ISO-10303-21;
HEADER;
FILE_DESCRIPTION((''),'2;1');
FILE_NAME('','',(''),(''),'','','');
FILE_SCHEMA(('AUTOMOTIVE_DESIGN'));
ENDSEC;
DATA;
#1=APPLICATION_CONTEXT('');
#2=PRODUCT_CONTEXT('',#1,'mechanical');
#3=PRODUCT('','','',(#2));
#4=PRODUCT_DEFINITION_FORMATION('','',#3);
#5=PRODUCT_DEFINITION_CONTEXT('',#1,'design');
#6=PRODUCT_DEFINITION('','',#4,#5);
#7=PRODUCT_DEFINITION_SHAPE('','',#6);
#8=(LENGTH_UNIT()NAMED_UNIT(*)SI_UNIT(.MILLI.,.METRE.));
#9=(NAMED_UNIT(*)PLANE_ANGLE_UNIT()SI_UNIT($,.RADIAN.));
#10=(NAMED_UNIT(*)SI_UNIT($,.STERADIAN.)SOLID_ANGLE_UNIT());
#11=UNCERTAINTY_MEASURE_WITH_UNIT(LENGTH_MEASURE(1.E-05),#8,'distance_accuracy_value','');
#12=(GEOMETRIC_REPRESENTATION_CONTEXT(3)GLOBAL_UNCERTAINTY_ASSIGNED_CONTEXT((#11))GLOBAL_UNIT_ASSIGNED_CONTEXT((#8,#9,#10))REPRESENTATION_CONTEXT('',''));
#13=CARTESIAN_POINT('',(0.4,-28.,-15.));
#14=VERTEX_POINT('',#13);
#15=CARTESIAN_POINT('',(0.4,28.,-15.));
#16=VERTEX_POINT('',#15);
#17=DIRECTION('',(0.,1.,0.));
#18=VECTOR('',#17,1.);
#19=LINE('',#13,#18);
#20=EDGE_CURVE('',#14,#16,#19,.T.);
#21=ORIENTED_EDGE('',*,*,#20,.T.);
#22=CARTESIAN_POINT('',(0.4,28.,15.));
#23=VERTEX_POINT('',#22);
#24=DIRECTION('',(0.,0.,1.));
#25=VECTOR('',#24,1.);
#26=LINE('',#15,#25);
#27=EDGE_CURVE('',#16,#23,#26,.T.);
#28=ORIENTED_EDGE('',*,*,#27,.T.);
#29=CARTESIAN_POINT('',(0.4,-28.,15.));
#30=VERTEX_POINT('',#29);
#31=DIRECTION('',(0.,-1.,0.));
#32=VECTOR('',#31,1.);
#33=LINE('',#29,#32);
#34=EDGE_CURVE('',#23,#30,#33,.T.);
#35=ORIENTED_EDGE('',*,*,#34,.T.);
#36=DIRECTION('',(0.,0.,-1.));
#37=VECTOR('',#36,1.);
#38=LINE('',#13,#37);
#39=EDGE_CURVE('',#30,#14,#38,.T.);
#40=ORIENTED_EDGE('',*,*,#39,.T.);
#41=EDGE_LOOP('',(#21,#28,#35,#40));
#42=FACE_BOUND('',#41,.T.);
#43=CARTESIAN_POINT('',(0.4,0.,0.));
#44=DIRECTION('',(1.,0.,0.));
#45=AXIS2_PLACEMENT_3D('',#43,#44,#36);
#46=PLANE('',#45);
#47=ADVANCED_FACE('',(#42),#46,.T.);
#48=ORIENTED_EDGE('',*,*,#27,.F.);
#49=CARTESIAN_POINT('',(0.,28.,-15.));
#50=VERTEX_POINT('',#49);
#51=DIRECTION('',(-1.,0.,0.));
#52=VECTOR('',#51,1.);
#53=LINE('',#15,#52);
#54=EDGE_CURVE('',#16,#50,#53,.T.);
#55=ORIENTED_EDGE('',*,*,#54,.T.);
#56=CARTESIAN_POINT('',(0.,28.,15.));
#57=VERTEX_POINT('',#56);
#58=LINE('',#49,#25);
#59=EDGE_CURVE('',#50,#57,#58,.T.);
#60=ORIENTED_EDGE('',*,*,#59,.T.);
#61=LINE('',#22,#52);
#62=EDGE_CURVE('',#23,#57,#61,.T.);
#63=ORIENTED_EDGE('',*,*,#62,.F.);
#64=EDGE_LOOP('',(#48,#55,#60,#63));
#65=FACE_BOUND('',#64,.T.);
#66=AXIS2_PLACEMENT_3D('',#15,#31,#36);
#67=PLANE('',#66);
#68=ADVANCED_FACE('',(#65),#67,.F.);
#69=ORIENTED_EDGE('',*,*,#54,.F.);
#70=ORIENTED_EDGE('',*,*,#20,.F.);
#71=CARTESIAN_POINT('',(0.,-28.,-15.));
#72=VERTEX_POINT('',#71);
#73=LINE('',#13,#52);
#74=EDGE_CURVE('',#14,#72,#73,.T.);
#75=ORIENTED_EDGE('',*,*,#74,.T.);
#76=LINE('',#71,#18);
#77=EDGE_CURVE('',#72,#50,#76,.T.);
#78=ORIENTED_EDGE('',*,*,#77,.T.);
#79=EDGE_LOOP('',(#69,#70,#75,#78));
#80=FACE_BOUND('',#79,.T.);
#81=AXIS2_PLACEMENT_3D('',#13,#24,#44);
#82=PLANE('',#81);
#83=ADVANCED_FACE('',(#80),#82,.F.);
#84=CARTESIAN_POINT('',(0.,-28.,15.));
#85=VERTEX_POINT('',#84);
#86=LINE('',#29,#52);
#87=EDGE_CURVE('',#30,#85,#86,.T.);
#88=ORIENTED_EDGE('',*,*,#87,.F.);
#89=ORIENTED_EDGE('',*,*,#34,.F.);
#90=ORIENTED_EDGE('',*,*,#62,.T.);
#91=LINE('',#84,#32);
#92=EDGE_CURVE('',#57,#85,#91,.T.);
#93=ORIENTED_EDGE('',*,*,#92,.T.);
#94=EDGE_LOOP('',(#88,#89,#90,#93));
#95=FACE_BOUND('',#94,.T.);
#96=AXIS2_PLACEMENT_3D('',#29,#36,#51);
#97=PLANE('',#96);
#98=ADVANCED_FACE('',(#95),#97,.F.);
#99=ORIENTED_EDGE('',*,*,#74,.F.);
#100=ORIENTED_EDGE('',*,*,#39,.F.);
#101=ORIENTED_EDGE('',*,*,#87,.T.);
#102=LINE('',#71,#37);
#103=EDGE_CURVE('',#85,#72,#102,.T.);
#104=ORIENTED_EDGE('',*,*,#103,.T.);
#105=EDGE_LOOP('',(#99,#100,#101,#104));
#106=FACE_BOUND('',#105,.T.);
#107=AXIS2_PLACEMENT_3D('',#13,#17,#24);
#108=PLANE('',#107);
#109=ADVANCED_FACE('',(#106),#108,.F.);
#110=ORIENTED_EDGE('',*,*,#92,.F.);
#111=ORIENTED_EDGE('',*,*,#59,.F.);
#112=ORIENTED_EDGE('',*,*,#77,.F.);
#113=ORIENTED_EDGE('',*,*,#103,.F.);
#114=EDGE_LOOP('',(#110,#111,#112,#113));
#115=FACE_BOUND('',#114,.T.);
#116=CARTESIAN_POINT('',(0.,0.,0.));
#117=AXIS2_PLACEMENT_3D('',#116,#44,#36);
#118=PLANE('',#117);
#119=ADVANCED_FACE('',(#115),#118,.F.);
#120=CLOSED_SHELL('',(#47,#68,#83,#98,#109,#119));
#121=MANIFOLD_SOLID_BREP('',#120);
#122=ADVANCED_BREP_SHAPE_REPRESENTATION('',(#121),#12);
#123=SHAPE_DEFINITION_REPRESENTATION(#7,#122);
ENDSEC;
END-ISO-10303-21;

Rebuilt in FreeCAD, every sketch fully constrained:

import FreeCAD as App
import Part
import Sketcher

doc = App.newDocument("Part")
body = doc.addObject("PartDesign::Body", "Body")

sketch1 = doc.addObject("Sketcher::SketchObject", "Sketch")
body.addObject(sketch1)
sketch1.AttachmentSupport = (doc.YZ_Plane, [""])
sketch1.MapMode = "FlatFace"
sketch1.addGeometry(Part.LineSegment(App.Vector(28, 15, 0), App.Vector(-28, 15, 0)), False)
sketch1.addGeometry(Part.LineSegment(App.Vector(-28, 15, 0), App.Vector(-28, -15, 0)), False)
sketch1.addGeometry(Part.LineSegment(App.Vector(-28, -15, 0), App.Vector(28, -15, 0)), False)
sketch1.addGeometry(Part.LineSegment(App.Vector(28, -15, 0), App.Vector(28, 15, 0)), False)
sketch1.addConstraint(Sketcher.Constraint("Coincident", 0, 2, 1, 1))
sketch1.addConstraint(Sketcher.Constraint("Coincident", 1, 2, 2, 1))
sketch1.addConstraint(Sketcher.Constraint("Coincident", 2, 2, 3, 1))
sketch1.addConstraint(Sketcher.Constraint("Coincident", 3, 2, 0, 1))
sketch1.addConstraint(Sketcher.Constraint("Horizontal", 0))
sketch1.addConstraint(Sketcher.Constraint("Vertical", 1))
sketch1.addConstraint(Sketcher.Constraint("Horizontal", 2))
sketch1.addConstraint(Sketcher.Constraint("Vertical", 3))
sketch1.addConstraint(Sketcher.Constraint("Symmetric", 0, 2, 2, 2, -1, 1))
sketch1.addConstraint(Sketcher.Constraint("DistanceX", 0, 2, 0, 1, 56.0))
sketch1.addConstraint(Sketcher.Constraint("DistanceY", 1, 2, 1, 1, 30.0))
pad1 = doc.addObject("PartDesign::Pad", "Pad")
body.addObject(pad1)
pad1.Profile = sketch1
pad1.Length = 0.4

doc.recompute()
